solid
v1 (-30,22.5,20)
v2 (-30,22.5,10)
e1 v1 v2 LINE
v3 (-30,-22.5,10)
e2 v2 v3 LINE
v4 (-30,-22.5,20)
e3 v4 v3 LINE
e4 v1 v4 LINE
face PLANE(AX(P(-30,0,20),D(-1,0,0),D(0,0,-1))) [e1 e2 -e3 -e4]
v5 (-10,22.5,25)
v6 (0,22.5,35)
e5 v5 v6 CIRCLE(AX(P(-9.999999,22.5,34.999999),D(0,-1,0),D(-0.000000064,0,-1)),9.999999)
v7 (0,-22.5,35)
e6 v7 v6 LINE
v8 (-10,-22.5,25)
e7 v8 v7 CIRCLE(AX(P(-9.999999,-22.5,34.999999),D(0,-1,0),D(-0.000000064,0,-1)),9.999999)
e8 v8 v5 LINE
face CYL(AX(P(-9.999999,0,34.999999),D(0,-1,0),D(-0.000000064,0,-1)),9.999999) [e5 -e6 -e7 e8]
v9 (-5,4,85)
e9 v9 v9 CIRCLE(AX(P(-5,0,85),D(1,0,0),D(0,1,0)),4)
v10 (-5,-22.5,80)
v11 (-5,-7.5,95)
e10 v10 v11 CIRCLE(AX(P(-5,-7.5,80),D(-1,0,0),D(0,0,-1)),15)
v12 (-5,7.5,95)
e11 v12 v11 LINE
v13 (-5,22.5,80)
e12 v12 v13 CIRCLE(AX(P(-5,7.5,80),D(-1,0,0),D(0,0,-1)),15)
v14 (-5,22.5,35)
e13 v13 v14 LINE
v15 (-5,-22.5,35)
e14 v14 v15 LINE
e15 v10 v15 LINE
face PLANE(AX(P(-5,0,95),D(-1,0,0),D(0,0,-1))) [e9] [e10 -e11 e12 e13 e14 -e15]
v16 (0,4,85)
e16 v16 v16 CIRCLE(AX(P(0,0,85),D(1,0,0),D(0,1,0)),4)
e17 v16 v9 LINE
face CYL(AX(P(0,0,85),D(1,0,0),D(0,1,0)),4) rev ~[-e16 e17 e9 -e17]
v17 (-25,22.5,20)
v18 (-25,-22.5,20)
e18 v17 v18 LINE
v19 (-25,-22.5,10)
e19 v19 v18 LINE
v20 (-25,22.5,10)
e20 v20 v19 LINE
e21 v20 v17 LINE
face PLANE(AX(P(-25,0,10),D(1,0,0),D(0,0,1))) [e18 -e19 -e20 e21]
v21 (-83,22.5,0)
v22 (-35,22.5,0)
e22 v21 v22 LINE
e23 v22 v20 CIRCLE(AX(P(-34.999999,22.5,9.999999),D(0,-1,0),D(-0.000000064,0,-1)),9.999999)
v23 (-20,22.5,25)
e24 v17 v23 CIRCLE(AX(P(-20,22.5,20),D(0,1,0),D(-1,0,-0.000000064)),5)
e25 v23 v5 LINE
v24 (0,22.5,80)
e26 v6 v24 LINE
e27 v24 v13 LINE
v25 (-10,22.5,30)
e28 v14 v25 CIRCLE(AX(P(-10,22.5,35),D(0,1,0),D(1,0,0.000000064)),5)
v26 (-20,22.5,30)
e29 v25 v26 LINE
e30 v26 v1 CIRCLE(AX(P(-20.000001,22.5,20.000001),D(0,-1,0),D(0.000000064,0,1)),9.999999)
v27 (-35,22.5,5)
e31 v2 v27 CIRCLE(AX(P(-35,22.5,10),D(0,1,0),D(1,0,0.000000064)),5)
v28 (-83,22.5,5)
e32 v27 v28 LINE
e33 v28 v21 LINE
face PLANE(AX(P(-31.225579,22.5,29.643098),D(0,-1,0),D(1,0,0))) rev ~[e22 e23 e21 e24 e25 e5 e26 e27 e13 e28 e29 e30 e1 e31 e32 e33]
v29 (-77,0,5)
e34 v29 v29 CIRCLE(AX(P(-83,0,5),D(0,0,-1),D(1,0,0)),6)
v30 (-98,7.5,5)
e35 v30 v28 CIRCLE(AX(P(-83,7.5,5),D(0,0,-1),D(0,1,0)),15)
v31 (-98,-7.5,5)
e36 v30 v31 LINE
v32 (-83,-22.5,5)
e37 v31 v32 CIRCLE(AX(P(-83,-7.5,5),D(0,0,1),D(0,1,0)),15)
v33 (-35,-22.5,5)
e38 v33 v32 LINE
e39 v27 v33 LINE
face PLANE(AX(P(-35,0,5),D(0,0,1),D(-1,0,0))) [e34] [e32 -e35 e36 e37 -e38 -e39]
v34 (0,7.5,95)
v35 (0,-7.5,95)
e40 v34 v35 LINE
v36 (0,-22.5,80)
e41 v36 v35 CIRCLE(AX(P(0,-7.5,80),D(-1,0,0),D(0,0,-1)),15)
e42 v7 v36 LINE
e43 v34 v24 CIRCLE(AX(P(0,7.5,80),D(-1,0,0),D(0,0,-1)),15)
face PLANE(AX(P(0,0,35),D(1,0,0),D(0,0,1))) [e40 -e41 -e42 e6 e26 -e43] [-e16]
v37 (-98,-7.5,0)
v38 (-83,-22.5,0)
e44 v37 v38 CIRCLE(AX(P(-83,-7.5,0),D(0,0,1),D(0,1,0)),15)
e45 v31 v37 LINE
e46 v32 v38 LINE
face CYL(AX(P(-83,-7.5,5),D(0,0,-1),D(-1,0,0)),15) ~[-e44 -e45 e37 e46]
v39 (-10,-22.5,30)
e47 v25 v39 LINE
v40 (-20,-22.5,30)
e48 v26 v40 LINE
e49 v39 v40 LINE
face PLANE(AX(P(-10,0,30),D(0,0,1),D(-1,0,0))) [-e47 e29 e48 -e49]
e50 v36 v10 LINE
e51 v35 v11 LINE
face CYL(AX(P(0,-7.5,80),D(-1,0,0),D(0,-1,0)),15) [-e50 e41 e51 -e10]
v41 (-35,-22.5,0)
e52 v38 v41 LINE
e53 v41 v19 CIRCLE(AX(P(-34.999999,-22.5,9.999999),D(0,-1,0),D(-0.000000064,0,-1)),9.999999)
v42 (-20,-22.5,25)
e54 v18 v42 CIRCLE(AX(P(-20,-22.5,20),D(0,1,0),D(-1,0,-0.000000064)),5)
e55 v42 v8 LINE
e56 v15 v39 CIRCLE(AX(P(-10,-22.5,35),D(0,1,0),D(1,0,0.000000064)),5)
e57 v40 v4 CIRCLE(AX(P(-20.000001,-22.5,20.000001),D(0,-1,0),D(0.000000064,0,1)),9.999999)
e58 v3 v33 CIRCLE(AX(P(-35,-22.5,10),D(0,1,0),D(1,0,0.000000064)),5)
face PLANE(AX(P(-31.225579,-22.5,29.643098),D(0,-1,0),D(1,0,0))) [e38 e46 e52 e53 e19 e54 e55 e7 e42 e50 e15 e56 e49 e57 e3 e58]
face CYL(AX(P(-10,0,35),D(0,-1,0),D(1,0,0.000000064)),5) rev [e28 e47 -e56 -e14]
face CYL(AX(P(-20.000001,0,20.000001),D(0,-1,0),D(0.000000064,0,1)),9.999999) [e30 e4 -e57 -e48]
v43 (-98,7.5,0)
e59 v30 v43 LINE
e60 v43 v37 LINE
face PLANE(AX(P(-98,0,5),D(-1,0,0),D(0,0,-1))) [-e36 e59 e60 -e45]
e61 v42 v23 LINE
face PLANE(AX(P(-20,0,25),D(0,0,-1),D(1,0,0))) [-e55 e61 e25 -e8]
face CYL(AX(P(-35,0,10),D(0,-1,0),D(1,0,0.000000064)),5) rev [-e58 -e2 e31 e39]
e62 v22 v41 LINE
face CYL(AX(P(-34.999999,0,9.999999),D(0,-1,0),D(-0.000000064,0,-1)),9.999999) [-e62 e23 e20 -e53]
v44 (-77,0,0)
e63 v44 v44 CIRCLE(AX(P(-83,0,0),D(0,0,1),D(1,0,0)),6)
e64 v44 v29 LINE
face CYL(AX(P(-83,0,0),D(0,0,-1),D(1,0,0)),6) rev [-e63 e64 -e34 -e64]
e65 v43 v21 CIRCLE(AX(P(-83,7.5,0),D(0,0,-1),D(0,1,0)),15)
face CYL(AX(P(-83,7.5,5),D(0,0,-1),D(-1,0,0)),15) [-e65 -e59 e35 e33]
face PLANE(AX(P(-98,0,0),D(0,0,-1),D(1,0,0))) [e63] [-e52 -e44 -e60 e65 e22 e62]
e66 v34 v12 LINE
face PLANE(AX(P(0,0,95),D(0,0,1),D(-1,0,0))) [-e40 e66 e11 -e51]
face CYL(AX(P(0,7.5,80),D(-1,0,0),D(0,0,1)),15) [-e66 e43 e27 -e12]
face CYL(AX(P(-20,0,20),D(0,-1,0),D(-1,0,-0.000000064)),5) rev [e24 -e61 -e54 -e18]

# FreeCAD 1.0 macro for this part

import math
import FreeCAD as App
import Part
import Sketcher
Q = App.Units.Quantity


def edges_at(feature, points):
    """Names of the edges that pass closest to the given points."""
    edges = feature.Shape.Edges
    near = lambda p: min(range(len(edges)), key=lambda i: edges[i].distToShape(Part.Vertex(*p))[0])
    return sorted({f"Edge{near(p) + 1}" for p in points})

doc = App.newDocument("Part")
body = doc.addObject("PartDesign::Body", "Body")

sketch1 = body.newObject("Sketcher::SketchObject", "Sketch")
sketch1.AttachmentSupport = (doc.getObject("XZ_Plane"), [""])
sketch1.MapMode = "FlatFace"
sketch1.addGeometry(Part.LineSegment(App.Vector(0, 35, 0), App.Vector(0, 95, 0)), False)
sketch1.addGeometry(Part.LineSegment(App.Vector(0, 95, 0), App.Vector(-5, 95, 0)), False)
sketch1.addGeometry(Part.LineSegment(App.Vector(-5, 95, 0), App.Vector(-5, 35, 0)), False)
sketch1.addGeometry(Part.ArcOfCircle(Part.Circle(App.Vector(-10, 35, 0), App.Vector(0, 0, 1), 5), math.radians(-90.000004), math.radians(0.000004)), False)
sketch1.addGeometry(Part.LineSegment(App.Vector(-10, 30, 0), App.Vector(-20, 30, 0)), False)
sketch1.addGeometry(Part.ArcOfCircle(Part.Circle(App.Vector(-20.000001, 20.000001, 0), App.Vector(0, 0, 1), 9.999999), math.radians(89.999996), math.radians(180.000004)), False)
sketch1.addGeometry(Part.LineSegment(App.Vector(-30, 20, 0), App.Vector(-30, 10, 0)), False)
sketch1.addGeometry(Part.ArcOfCircle(Part.Circle(App.Vector(-35, 10, 0), App.Vector(0, 0, 1), 5), math.radians(-90.000004), math.radians(0.000004)), False)
sketch1.addGeometry(Part.LineSegment(App.Vector(-35, 5, 0), App.Vector(-98, 5, 0)), False)
sketch1.addGeometry(Part.LineSegment(App.Vector(-98, 5, 0), App.Vector(-98, 0, 0)), False)
sketch1.addGeometry(Part.LineSegment(App.Vector(-98, 0, 0), App.Vector(-35, 0, 0)), False)
sketch1.addGeometry(Part.ArcOfCircle(Part.Circle(App.Vector(-34.999999, 9.999999, 0), App.Vector(0, 0, 1), 9.999999), math.radians(-90.000004), math.radians(0.000004)), False)
sketch1.addGeometry(Part.LineSegment(App.Vector(-25, 10, 0), App.Vector(-25, 20, 0)), False)
sketch1.addGeometry(Part.ArcOfCircle(Part.Circle(App.Vector(-20, 20, 0), App.Vector(0, 0, 1), 5), math.radians(89.999996), math.radians(180.000004)), False)
sketch1.addGeometry(Part.LineSegment(App.Vector(-20, 25, 0), App.Vector(-10, 25, 0)), False)
sketch1.addGeometry(Part.ArcOfCircle(Part.Circle(App.Vector(-9.999999, 34.999999, 0), App.Vector(0, 0, 1), 9.999999), math.radians(-90.000004), math.radians(0.000004)), False)
sketch1.addConstraint(Sketcher.Constraint("Coincident", 0, 2, 1, 1))
sketch1.addConstraint(Sketcher.Constraint("Coincident", 1, 2, 2, 1))
sketch1.addConstraint(Sketcher.Constraint("Tangent", 2, 2, 3, 2))
sketch1.addConstraint(Sketcher.Constraint("Tangent", 3, 1, 4, 1))
sketch1.addConstraint(Sketcher.Constraint("Tangent", 4, 2, 5, 1))
sketch1.addConstraint(Sketcher.Constraint("Tangent", 5, 2, 6, 1))
sketch1.addConstraint(Sketcher.Constraint("Tangent", 6, 2, 7, 2))
sketch1.addConstraint(Sketcher.Constraint("Tangent", 7, 1, 8, 1))
sketch1.addConstraint(Sketcher.Constraint("Coincident", 8, 2, 9, 1))
sketch1.addConstraint(Sketcher.Constraint("Coincident", 9, 2, 10, 1))
sketch1.addConstraint(Sketcher.Constraint("Tangent", 10, 2, 11, 1))
sketch1.addConstraint(Sketcher.Constraint("Tangent", 11, 2, 12, 1))
sketch1.addConstraint(Sketcher.Constraint("Tangent", 12, 2, 13, 2))
sketch1.addConstraint(Sketcher.Constraint("Tangent", 13, 1, 14, 1))
sketch1.addConstraint(Sketcher.Constraint("Tangent", 14, 2, 15, 1))
sketch1.addConstraint(Sketcher.Constraint("Tangent", 15, 2, 0, 1))
sketch1.addConstraint(Sketcher.Constraint("Vertical", 0))
sketch1.addConstraint(Sketcher.Constraint("Horizontal", 1))
sketch1.addConstraint(Sketcher.Constraint("Vertical", 2))
sketch1.addConstraint(Sketcher.Constraint("Horizontal", 4))
sketch1.addConstraint(Sketcher.Constraint("Vertical", 6))
sketch1.addConstraint(Sketcher.Constraint("Horizontal", 8))
sketch1.addConstraint(Sketcher.Constraint("Vertical", 9))
sketch1.addConstraint(Sketcher.Constraint("Horizontal", 10))
sketch1.addConstraint(Sketcher.Constraint("Vertical", 12))
sketch1.addConstraint(Sketcher.Constraint("Horizontal", 14))
sketch1.addConstraint(Sketcher.Constraint("Coincident", 11, 3, 7, 3))
sketch1.addConstraint(Sketcher.Constraint("Coincident", 13, 3, 5, 3))
sketch1.addConstraint(Sketcher.Constraint("Coincident", 15, 3, 3, 3))
sketch1.addConstraint(Sketcher.Constraint("Equal", 3, 7))
sketch1.addConstraint(Sketcher.Constraint("Equal", 5, 11))
sketch1.addConstraint(Sketcher.Constraint("PointOnObject", 0, 2, -2))
sketch1.addConstraint(Sketcher.Constraint("PointOnObject", 9, 2, -1))
sketch1.addConstraint(Sketcher.Constraint("Equal", 14, 6))
sketch1.addConstraint(Sketcher.Constraint("Radius", 3, Q("5 mm")))
sketch1.addConstraint(Sketcher.Constraint("Radius", 5, Q("9.999999 mm")))
sketch1.addConstraint(Sketcher.Constraint("DistanceX", 4, 2, 4, 1, Q("10 mm")))
sketch1.addConstraint(Sketcher.Constraint("DistanceX", 8, 2, 8, 1, Q("63 mm")))
sketch1.addConstraint(Sketcher.Constraint("DistanceY", 0, 1, 0, 2, Q("60 mm")))
pad1 = body.newObject("PartDesign::Pad", "Pad")
pad1.Profile = sketch1
pad1.Length = 45
pad1.Midplane = True
doc.recompute()

fillet = body.newObject("PartDesign::Fillet", "Fillet")
fillet.Base = (pad1, edges_at(pad1, [
    (-98, -22.5, 2.5),
    (-2.5, -22.5, 95),
    (-2.5, 22.5, 95),
    (-98, 22.5, 2.5),
]))
fillet.Radius = 15

sketch2 = body.newObject("Sketcher::SketchObject", "Sketch001")
sketch2.AttachmentSupport = (doc.getObject("YZ_Plane"), [""])
sketch2.MapMode = "FlatFace"
sketch2.addGeometry(Part.Circle(App.Vector(0, 85, 0), App.Vector(0, 0, 1), 4), False)
sketch2.addConstraint(Sketcher.Constraint("PointOnObject", 0, 3, -2))
sketch2.addConstraint(Sketcher.Constraint("Diameter", 0, Q("8 mm")))
sketch2.addConstraint(Sketcher.Constraint("DistanceY", -1, 1, 0, 3, Q("85 mm")))
pocket1 = body.newObject("PartDesign::Pocket", "Pocket")
pocket1.Profile = sketch2
pocket1.Type = "ThroughAll"

sketch3 = body.newObject("Sketcher::SketchObject", "Sketch002")
sketch3.AttachmentSupport = (doc.getObject("XY_Plane"), [""])
sketch3.MapMode = "FlatFace"
sketch3.addGeometry(Part.Circle(App.Vector(-83, 0, 0), App.Vector(0, 0, 1), 6), False)
sketch3.addConstraint(Sketcher.Constraint("PointOnObject", 0, 3, -1))
sketch3.addConstraint(Sketcher.Constraint("Diameter", 0, Q("12 mm")))
sketch3.addConstraint(Sketcher.Constraint("DistanceX", 0, 3, -1, 1, Q("83 mm")))
pocket2 = body.newObject("PartDesign::Pocket", "Pocket001")
pocket2.Profile = sketch3
pocket2.Length = 25
pocket2.Reversed = True

doc.recompute()
